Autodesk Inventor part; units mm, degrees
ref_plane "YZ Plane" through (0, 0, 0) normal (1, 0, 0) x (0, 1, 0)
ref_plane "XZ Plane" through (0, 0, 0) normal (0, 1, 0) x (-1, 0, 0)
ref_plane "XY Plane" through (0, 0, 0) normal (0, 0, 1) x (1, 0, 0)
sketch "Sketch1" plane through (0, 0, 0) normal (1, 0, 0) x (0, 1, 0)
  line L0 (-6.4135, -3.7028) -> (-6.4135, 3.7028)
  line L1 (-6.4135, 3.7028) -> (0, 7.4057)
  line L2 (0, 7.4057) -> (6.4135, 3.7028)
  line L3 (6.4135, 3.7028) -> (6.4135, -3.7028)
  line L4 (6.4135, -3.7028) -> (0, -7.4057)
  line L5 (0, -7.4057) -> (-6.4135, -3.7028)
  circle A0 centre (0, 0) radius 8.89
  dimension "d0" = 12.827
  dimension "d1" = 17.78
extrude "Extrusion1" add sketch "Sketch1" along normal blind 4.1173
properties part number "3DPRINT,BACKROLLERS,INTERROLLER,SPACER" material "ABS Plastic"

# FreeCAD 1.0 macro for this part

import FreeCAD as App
import Part
import Sketcher
Q = App.Units.Quantity

doc = App.newDocument("Part")
body = doc.addObject("PartDesign::Body", "Body")

# Sketch on YZ plane
sketch1 = body.newObject("Sketcher::SketchObject", "Sketch")
sketch1.AttachmentSupport = (doc.getObject("YZ_Plane"), [""])
sketch1.MapMode = "FlatFace"
sketch1.addGeometry(Part.Circle(App.Vector(0, 0, 0), App.Vector(0, 0, 1), 9), False)
sketch1.addGeometry(Part.LineSegment(App.Vector(0, -7, 0), App.Vector(-6, -4, 0)), False)
sketch1.addGeometry(Part.LineSegment(App.Vector(-6, -4, 0), App.Vector(-6, 4, 0)), False)
sketch1.addGeometry(Part.LineSegment(App.Vector(-6, 4, 0), App.Vector(0, 7, 0)), False)
sketch1.addGeometry(Part.LineSegment(App.Vector(0, 7, 0), App.Vector(6, 4, 0)), False)
sketch1.addGeometry(Part.LineSegment(App.Vector(6, 4, 0), App.Vector(6, -4, 0)), False)
sketch1.addGeometry(Part.LineSegment(App.Vector(6, -4, 0), App.Vector(0, -7, 0)), False)
sketch1.addConstraint(Sketcher.Constraint("Coincident", 1, 2, 2, 1))
sketch1.addConstraint(Sketcher.Constraint("Coincident", 2, 2, 3, 1))
sketch1.addConstraint(Sketcher.Constraint("Coincident", 3, 2, 4, 1))
sketch1.addConstraint(Sketcher.Constraint("Coincident", 4, 2, 5, 1))
sketch1.addConstraint(Sketcher.Constraint("Coincident", 5, 2, 6, 1))
sketch1.addConstraint(Sketcher.Constraint("Coincident", 6, 2, 1, 1))
sketch1.addConstraint(Sketcher.Constraint("Vertical", 2))
sketch1.addConstraint(Sketcher.Constraint("Vertical", 5))
sketch1.addConstraint(Sketcher.Constraint("Coincident", 0, 3, -1, 1))
sketch1.addConstraint(Sketcher.Constraint("Symmetric", 1, 2, 4, 2, -1, 1))
sketch1.addConstraint(Sketcher.Constraint("Symmetric", 3, 2, 6, 2, -1, 1))
sketch1.addConstraint(Sketcher.Constraint("PointOnObject", 3, 2, -2))
sketch1.addConstraint(Sketcher.Constraint("Parallel", 3, 6))
sketch1.addConstraint(Sketcher.Constraint("Horizontal", 2, 2, 4, 2))
sketch1.addConstraint(Sketcher.Constraint("Diameter", 0, Q("0.7 in")))
sketch1.addConstraint(Sketcher.Constraint("Angle", 1, Q("149.9996 deg")))
sketch1.addConstraint(Sketcher.Constraint("DistanceX", 2, 2, 4, 2, Q("0.505 in")))
sketch1.addConstraint(Sketcher.Constraint("DistanceY", 2, 1, 2, 2, Q("7.4056 mm")))
pad1 = body.newObject("PartDesign::Pad", "Pad")
pad1.Profile = sketch1
pad1.Length = Q("0.1620984 in")

doc.recompute()
